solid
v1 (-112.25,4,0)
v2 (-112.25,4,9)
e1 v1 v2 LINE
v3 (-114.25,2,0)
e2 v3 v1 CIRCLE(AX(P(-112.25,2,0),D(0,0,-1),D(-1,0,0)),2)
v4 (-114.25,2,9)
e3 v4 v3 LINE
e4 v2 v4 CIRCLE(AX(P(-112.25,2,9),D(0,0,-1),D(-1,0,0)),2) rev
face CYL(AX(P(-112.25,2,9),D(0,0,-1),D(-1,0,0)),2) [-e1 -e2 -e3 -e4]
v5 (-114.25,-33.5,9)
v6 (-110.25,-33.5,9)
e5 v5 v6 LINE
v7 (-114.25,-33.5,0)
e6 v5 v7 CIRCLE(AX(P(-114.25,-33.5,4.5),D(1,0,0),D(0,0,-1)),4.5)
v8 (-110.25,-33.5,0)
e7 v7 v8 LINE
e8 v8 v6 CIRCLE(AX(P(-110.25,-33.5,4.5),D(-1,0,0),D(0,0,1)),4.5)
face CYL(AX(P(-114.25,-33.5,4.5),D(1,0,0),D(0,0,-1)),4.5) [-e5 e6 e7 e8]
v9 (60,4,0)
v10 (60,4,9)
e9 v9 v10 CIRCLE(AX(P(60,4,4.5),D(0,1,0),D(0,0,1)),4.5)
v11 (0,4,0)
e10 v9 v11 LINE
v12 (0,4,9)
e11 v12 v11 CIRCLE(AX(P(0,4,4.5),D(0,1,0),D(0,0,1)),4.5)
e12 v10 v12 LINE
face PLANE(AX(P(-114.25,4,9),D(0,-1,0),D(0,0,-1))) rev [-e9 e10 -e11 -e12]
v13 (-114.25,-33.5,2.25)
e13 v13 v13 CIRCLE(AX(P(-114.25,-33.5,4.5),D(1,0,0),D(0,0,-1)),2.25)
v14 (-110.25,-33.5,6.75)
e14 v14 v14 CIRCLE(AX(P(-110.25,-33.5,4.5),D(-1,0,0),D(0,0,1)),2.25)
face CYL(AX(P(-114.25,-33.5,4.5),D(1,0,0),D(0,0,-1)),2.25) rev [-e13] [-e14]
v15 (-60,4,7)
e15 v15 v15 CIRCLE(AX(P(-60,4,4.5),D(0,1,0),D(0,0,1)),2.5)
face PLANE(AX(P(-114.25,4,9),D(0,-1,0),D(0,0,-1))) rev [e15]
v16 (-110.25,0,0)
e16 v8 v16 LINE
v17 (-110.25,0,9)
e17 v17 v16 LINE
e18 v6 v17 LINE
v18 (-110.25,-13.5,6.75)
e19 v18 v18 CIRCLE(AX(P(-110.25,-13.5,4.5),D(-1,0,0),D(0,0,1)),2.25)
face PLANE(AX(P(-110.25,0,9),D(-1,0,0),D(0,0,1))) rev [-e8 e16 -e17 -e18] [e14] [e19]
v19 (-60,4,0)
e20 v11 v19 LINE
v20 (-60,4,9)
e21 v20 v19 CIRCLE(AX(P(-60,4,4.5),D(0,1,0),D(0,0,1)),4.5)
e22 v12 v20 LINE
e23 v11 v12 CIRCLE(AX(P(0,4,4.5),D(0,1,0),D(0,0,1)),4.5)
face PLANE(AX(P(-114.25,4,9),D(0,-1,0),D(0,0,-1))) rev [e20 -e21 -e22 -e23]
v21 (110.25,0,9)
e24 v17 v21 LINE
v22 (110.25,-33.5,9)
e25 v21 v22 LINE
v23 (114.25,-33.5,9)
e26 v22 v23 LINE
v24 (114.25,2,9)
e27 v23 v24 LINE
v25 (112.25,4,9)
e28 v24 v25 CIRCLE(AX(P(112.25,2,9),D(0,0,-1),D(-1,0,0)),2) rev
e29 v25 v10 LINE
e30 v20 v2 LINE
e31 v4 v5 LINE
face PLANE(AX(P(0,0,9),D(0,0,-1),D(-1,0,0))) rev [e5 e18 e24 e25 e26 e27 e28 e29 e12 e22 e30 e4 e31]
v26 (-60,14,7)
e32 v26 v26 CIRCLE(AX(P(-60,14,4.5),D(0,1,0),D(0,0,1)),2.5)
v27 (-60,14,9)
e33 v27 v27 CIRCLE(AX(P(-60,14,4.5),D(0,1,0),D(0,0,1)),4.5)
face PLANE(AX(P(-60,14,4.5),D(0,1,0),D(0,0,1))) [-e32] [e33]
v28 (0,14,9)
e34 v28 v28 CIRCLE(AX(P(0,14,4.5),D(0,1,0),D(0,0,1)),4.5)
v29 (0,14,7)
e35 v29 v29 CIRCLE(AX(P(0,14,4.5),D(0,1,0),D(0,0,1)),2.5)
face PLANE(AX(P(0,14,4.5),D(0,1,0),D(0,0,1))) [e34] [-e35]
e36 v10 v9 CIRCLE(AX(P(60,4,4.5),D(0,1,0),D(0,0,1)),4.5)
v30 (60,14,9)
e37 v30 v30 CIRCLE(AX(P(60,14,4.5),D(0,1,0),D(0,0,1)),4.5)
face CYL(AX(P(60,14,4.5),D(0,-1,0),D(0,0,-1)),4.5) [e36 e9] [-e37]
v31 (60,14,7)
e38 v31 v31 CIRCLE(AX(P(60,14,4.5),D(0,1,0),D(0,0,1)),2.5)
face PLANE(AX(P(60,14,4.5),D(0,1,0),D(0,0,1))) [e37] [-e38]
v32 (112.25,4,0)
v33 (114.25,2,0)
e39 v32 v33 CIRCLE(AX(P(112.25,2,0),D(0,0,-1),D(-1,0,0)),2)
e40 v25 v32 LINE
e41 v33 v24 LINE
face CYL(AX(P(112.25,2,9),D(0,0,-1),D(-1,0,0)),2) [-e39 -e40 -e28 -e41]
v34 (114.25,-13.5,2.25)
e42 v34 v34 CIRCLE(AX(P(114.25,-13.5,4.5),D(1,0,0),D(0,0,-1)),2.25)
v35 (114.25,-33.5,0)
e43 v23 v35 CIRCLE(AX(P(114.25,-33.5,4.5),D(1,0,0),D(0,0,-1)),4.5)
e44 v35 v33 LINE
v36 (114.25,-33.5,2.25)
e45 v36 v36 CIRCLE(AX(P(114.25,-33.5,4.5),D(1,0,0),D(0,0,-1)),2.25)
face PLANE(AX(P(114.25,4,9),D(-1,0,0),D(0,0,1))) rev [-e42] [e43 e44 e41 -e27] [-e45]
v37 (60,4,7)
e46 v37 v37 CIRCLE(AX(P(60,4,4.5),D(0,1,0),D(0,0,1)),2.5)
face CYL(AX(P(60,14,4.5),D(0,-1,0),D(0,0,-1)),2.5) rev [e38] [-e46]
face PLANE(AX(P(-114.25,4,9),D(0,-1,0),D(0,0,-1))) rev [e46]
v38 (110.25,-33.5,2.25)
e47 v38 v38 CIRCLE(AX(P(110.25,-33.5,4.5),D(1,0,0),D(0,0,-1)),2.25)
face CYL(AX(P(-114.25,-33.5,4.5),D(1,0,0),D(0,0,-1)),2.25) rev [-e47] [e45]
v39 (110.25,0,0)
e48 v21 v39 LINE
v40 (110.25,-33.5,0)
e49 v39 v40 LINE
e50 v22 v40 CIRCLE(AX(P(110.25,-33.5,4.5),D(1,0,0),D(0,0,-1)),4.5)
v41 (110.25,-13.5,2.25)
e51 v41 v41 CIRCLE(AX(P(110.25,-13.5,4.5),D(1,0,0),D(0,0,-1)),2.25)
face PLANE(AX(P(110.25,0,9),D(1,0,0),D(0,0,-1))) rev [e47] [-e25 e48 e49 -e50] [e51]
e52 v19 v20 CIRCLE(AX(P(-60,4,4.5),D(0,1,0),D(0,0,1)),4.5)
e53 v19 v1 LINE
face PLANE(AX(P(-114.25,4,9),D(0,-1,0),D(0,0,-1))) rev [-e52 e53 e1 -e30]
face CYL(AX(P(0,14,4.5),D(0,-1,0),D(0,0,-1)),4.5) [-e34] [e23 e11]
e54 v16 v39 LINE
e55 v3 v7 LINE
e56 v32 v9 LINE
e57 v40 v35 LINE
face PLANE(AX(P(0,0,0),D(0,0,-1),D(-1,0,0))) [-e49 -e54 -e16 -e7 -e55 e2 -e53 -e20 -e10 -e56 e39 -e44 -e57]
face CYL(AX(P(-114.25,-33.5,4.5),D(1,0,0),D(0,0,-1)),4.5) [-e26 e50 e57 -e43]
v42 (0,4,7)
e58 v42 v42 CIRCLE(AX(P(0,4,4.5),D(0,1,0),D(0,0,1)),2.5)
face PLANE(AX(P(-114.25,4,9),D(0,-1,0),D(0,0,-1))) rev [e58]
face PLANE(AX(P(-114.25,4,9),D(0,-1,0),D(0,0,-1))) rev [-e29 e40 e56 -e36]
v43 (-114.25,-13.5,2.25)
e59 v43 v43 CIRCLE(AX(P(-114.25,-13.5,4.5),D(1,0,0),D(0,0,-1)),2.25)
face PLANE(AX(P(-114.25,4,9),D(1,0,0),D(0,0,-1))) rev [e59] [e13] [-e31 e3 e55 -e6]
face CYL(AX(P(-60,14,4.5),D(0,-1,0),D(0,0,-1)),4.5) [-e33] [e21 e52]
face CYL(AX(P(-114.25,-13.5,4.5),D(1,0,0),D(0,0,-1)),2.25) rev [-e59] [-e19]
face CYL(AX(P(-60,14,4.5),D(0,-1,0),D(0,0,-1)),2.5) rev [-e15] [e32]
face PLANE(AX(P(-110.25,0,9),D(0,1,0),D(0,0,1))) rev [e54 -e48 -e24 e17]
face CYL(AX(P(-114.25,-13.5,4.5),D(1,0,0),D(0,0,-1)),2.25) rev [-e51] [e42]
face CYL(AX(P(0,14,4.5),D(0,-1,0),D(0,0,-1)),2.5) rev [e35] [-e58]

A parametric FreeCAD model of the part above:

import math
import FreeCAD as App
import Part
import Sketcher
from FreeCAD import Vector
Q = App.Units.Quantity


def edges_at(feature, points):
    """Names of the edges that pass closest to the given points."""
    edges = feature.Shape.Edges
    near = lambda p: min(range(len(edges)), key=lambda i: edges[i].distToShape(Part.Vertex(*p))[0])
    return sorted({f"Edge{near(p) + 1}" for p in points})


def add_polygon(sketch, points):
    """Adds a closed chain of lines whose ends are joined by coincident constraints."""
    first, n = sketch.GeometryCount, len(points)
    for a, b in zip(points, points[1:] + points[:1]):
        sketch.addGeometry(Part.LineSegment(App.Vector(*a, 0), App.Vector(*b, 0)), False)
    for i in range(n):
        sketch.addConstraint(Sketcher.Constraint("Coincident", first + i, 2, first + (i + 1) % n, 1))

doc = App.newDocument("Part")
params = doc.addObject("Spreadsheet::Sheet", "Params")
for row, (alias, value) in enumerate([
    ("sketch1_width", "4 mm"),
    ("sketch1_height", "38 mm"),
    ("sketch1_height2", "42 mm"),
    ("sketch1_width2", "220.5 mm"),
    ("pad1_length", "9 mm"),
    ("sketch2_diameter", "4.5 mm"),
    ("sketch2_radius", "4.5 mm"),
    ("fillet_radius", "2 mm"),
    ("sketch3_diameter", "9 mm"),
    ("sketch3_diameter2", "5 mm"),
    ("pad2_length", "10 mm"),
], start=1):
    params.set(f"A{row}", alias)
    params.set(f"B{row}", "=" + value)
    params.setAlias(f"B{row}", alias)

body = doc.addObject("PartDesign::Body", "Body")

# Sketch on XY plane
sketch1 = body.newObject("Sketcher::SketchObject", "Sketch")
sketch1.AttachmentSupport = (doc.getObject("XY_Plane"), [""])
sketch1.MapMode = "FlatFace"
add_polygon(sketch1, [(-110.2, 0), (110.2, 0), (110.2, -38), (114.2, -38), (114.2, 4), (-114.2, 4), (-114.2, -38), (-110.2, -38)])  # lines 0-7
sketch1.addConstraint([
    Sketcher.Constraint("Horizontal", 0),
    Sketcher.Constraint("Vertical", 1),
    Sketcher.Constraint("Horizontal", 2),
    Sketcher.Constraint("Vertical", 3),
    Sketcher.Constraint("Horizontal", 4),
    Sketcher.Constraint("Vertical", 5),
    Sketcher.Constraint("Horizontal", 6),
    Sketcher.Constraint("Vertical", 7),
    Sketcher.Constraint("Symmetric", 0, 2, 7, 2, -1, 1),
    Sketcher.Constraint("Symmetric", 2, 2, 5, 2, -2),
    Sketcher.Constraint("DistanceX", 2, 1, 2, 2, Q("4 mm")),
    Sketcher.Constraint("DistanceY", 1, 2, 1, 1, Q("38 mm")),
    Sketcher.Constraint("DistanceY", 3, 1, 3, 2, Q("42 mm")),
    Sketcher.Constraint("DistanceX", 0, 1, 0, 2, Q("220.5 mm")),
])
sketch1.setExpression("Constraints[18]", "Params.sketch1_width")
sketch1.setExpression("Constraints[19]", "Params.sketch1_height")
sketch1.setExpression("Constraints[20]", "Params.sketch1_height2")
sketch1.setExpression("Constraints[21]", "Params.sketch1_width2")
pad1 = body.newObject("PartDesign::Pad", "Pad")
pad1.Profile = sketch1
pad1.setExpression("Length", "Params.pad1_length")

# Sketch on YZ plane
sketch2 = body.newObject("Sketcher::SketchObject", "Sketch001")
sketch2.AttachmentSupport = (doc.getObject("YZ_Plane"), [""])
sketch2.MapMode = "FlatFace"
sketch2.AttachmentOffset = App.Placement(Vector(0, 0, 114.25), App.Rotation())
sketch2.addGeometry([
    Part.Circle(Vector(-13.5, 4.5, 0), Vector(0, 0, 1), 2.2),  # 0
    Part.ArcOfCircle(Part.Circle(Vector(-33.5, 4.5, 0), Vector(0, 0, 1), 4.5), math.radians(90), math.radians(180)),  # 1
    Part.LineSegment(Vector(-33.5, 9, 0), Vector(-38, 9, 0)),  # 2
    Part.LineSegment(Vector(-38, 9, 0), Vector(-38, 4.5, 0)),  # 3
    Part.LineSegment(Vector(-38, 0, 0), Vector(-33.5, 0, 0)),  # 4
    Part.ArcOfCircle(Part.Circle(Vector(-33.5, 4.5, 0), Vector(0, 0, 1), 4.5), math.radians(-180), math.radians(-90)),  # 5
    Part.LineSegment(Vector(-38, 4.5, 0), Vector(-38, 0, 0)),  # 6
    Part.Circle(Vector(-33.5, 4.5, 0), Vector(0, 0, 1), 2.2),  # 7
], False)
sketch2.addConstraint([
    Sketcher.Constraint("Tangent", 1, 1, 2, 1),
    Sketcher.Constraint("Coincident", 2, 2, 3, 1),
    Sketcher.Constraint("Tangent", 3, 2, 1, 2),
    Sketcher.Constraint("Tangent", 4, 2, 5, 2),
    Sketcher.Constraint("Tangent", 5, 1, 6, 1),
    Sketcher.Constraint("Coincident", 6, 2, 4, 1),
    Sketcher.Constraint("Horizontal", 2),
    Sketcher.Constraint("Vertical", 3),
    Sketcher.Constraint("Horizontal", 4),
    Sketcher.Constraint("Vertical", 6),
    Sketcher.Constraint("Coincident", 5, 3, 1, 3),
    Sketcher.Constraint("Coincident", 7, 3, 1, 3),
    Sketcher.Constraint("Equal", 1, 5),
    Sketcher.Constraint("Equal", 0, 7),
    Sketcher.Constraint("PointOnObject", 4, 2, -1),
    Sketcher.Constraint("Horizontal", 0, 3, 1, 3),
    Sketcher.Constraint("Diameter", 0, Q("4.5 mm")),
    Sketcher.Constraint("Radius", 1, Q("4.5 mm")),
    Sketcher.Constraint("DistanceX", 2, 2, -1, 1, Q("38 mm")),
    Sketcher.Constraint("DistanceX", 1, 3, 0, 3, Q("20 mm")),
])
sketch2.setExpression("Constraints[16]", "Params.sketch2_diameter")
sketch2.setExpression("Constraints[17]", "Params.sketch2_radius")
pocket1 = body.newObject("PartDesign::Pocket", "Pocket")
pocket1.Profile = sketch2
pocket1.Type = "ThroughAll"
doc.recompute()

fillet = body.newObject("PartDesign::Fillet", "Fillet")
fillet.Base = (pocket1, edges_at(pocket1, [(114.25, 4, 4.5), (-114.25, 4, 4.5)]))
fillet.setExpression("Radius", "Params.fillet_radius")

# Sketch on XZ plane
sketch3 = body.newObject("Sketcher::SketchObject", "Sketch002")
sketch3.AttachmentSupport = (doc.getObject("XZ_Plane"), [""])
sketch3.MapMode = "FlatFace"
sketch3.AttachmentOffset = App.Placement(Vector(0, 0, -4), App.Rotation())
sketch3.addGeometry([
    Part.Circle(Vector(0, 4.5, 0), Vector(0, 0, 1), 4.5),  # 0
    Part.Circle(Vector(0, 4.5, 0), Vector(0, 0, 1), 2.5),  # 1
    Part.Circle(Vector(60, 4.5, 0), Vector(0, 0, 1), 4.5),  # 2
    Part.Circle(Vector(60, 4.5, 0), Vector(0, 0, 1), 2.5),  # 3
    Part.Circle(Vector(-60, 4.5, 0), Vector(0, 0, 1), 4.5),  # 4
    Part.Circle(Vector(-60, 4.5, 0), Vector(0, 0, 1), 2.5),  # 5
], False)
sketch3.addConstraint([
    Sketcher.Constraint("Coincident", 1, 3, 0, 3),
    Sketcher.Constraint("Coincident", 3, 3, 2, 3),
    Sketcher.Constraint("Coincident", 5, 3, 4, 3),
    Sketcher.Constraint("Equal", 0, 2),
    Sketcher.Constraint("Equal", 1, 3),
    Sketcher.Constraint("Equal", 2, 4),
    Sketcher.Constraint("Equal", 3, 5),
    Sketcher.Constraint("Symmetric", 2, 3, 4, 3, -2),
    Sketcher.Constraint("PointOnObject", 0, 3, -2),
    Sketcher.Constraint("Horizontal", 1, 3, 2, 3),
    Sketcher.Constraint("Diameter", 0, Q("9 mm")),
    Sketcher.Constraint("Diameter", 1, Q("5 mm")),
    Sketcher.Constraint("DistanceX", -1, 1, 2, 3, Q("60 mm")),
    Sketcher.Constraint("DistanceY", -1, 1, 0, 3, Q("4.5 mm")),
])
sketch3.setExpression("Constraints[10]", "Params.sketch3_diameter")
sketch3.setExpression("Constraints[11]", "Params.sketch3_diameter2")
pad2 = body.newObject("PartDesign::Pad", "Pad001")
pad2.Profile = sketch3
pad2.setExpression("Length", "Params.pad2_length")
pad2.Reversed = True

doc.recompute()
